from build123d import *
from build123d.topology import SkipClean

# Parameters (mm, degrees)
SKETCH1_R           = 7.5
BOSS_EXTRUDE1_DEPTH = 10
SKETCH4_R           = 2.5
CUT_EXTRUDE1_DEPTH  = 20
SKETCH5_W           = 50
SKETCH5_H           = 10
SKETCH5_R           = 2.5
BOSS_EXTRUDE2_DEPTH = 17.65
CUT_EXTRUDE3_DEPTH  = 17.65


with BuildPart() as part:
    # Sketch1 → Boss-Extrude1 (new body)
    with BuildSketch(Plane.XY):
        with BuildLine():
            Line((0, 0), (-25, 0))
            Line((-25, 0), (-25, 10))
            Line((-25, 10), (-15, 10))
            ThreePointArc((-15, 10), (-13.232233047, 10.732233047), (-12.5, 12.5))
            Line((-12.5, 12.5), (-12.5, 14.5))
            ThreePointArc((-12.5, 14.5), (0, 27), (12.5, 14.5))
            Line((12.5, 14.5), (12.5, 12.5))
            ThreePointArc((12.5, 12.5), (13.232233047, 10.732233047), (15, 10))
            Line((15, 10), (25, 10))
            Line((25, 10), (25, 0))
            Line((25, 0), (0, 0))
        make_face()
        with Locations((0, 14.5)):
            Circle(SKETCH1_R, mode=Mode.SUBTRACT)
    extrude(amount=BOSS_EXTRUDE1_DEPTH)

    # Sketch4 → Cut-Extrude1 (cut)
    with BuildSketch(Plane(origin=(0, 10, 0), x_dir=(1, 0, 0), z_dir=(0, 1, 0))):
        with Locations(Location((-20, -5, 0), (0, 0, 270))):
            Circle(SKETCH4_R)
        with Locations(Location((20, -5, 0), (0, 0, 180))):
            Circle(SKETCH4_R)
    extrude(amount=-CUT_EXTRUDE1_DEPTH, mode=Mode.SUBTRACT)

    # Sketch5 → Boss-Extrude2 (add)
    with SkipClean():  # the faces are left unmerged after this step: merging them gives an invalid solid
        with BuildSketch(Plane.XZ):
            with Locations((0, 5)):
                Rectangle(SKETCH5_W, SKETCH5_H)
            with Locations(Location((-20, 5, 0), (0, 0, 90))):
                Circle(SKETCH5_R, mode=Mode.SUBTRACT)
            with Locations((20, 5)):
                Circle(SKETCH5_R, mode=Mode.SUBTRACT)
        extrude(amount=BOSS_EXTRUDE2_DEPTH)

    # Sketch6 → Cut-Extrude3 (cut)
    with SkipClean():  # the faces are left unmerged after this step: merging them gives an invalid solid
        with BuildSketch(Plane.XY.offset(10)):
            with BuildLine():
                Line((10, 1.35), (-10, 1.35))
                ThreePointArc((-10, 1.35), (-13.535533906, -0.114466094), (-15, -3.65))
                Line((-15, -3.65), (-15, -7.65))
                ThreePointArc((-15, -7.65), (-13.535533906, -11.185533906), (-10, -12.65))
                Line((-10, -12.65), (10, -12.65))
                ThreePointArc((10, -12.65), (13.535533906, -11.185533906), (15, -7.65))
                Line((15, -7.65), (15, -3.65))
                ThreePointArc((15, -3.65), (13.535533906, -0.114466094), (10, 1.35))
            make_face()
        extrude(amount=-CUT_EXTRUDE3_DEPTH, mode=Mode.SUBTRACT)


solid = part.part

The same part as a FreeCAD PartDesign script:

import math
import FreeCAD as App
import Part
import Sketcher
from FreeCAD import Vector
Q = App.Units.Quantity


def add_polygon(sketch, points):
    """Adds a closed chain of lines whose ends are joined by coincident constraints."""
    first, n = sketch.GeometryCount, len(points)
    for a, b in zip(points, points[1:] + points[:1]):
        sketch.addGeometry(Part.LineSegment(App.Vector(*a, 0), App.Vector(*b, 0)), False)
    for i in range(n):
        sketch.addConstraint(Sketcher.Constraint("Coincident", first + i, 2, first + (i + 1) % n, 1))

doc = App.newDocument("Part")
body = doc.addObject("PartDesign::Body", "Body")

# Sketch on XY plane
sketch1 = doc.addObject("Sketcher::SketchObject", "Sketch")
body.addObject(sketch1)
sketch1.AttachmentSupport = (doc.XY_Plane, [""])
sketch1.MapMode = "FlatFace"
sketch1.addGeometry(Part.LineSegment(Vector(-25, 10, 0), Vector(-25, 0, 0)), False)
sketch1.addGeometry(Part.LineSegment(Vector(-25, 0, 0), Vector(25, 0, 0)), False)
sketch1.addGeometry(Part.LineSegment(Vector(25, 0, 0), Vector(25, 10, 0)), False)
sketch1.addGeometry(Part.LineSegment(Vector(25, 10, 0), Vector(15, 10, 0)), False)
sketch1.addGeometry(Part.ArcOfCircle(Part.Circle(Vector(15, 12.5, 0), Vector(0, 0, 1), 2.5), math.radians(180), math.radians(270)), False)
sketch1.addGeometry(Part.LineSegment(Vector(12.5, 12.5, 0), Vector(12.5, 14.5, 0)), False)
sketch1.addGeometry(Part.ArcOfCircle(Part.Circle(Vector(0, 14.5, 0), Vector(0, 0, 1), 12.5), math.radians(0), math.radians(180)), False)
sketch1.addGeometry(Part.LineSegment(Vector(-12.5, 14.5, 0), Vector(-12.5, 12.5, 0)), False)
sketch1.addGeometry(Part.ArcOfCircle(Part.Circle(Vector(-15, 12.5, 0), Vector(0, 0, 1), 2.5), math.radians(-90), math.radians(0)), False)
sketch1.addGeometry(Part.LineSegment(Vector(-15, 10, 0), Vector(-25, 10, 0)), False)
sketch1.addGeometry(Part.Circle(Vector(0, 14.5, 0), Vector(0, 0, 1), 7.5), False)
sketch1.addConstraint(Sketcher.Constraint("Coincident", 0, 2, 1, 1))
sketch1.addConstraint(Sketcher.Constraint("Coincident", 1, 2, 2, 1))
sketch1.addConstraint(Sketcher.Constraint("Coincident", 2, 2, 3, 1))
sketch1.addConstraint(Sketcher.Constraint("Tangent", 3, 2, 4, 2))
sketch1.addConstraint(Sketcher.Constraint("Tangent", 4, 1, 5, 1))
sketch1.addConstraint(Sketcher.Constraint("Tangent", 5, 2, 6, 1))
sketch1.addConstraint(Sketcher.Constraint("Tangent", 6, 2, 7, 1))
sketch1.addConstraint(Sketcher.Constraint("Tangent", 7, 2, 8, 2))
sketch1.addConstraint(Sketcher.Constraint("Tangent", 8, 1, 9, 1))
sketch1.addConstraint(Sketcher.Constraint("Coincident", 9, 2, 0, 1))
sketch1.addConstraint(Sketcher.Constraint("Vertical", 0))
sketch1.addConstraint(Sketcher.Constraint("Horizontal", 1))
sketch1.addConstraint(Sketcher.Constraint("Vertical", 2))
sketch1.addConstraint(Sketcher.Constraint("Horizontal", 3))
sketch1.addConstraint(Sketcher.Constraint("Vertical", 5))
sketch1.addConstraint(Sketcher.Constraint("Vertical", 7))
sketch1.addConstraint(Sketcher.Constraint("Horizontal", 9))
sketch1.addConstraint(Sketcher.Constraint("Coincident", 10, 3, 6, 3))
sketch1.addConstraint(Sketcher.Constraint("Equal", 4, 8))
sketch1.addConstraint(Sketcher.Constraint("Symmetric", 0, 2, 1, 2, -1, 1))
sketch1.addConstraint(Sketcher.Constraint("Symmetric", 4, 3, 8, 3, -2))
sketch1.addConstraint(Sketcher.Constraint("Equal", 9, 0))
sketch1.addConstraint(Sketcher.Constraint("Diameter", 10, Q("15 mm")))
sketch1.addConstraint(Sketcher.Constraint("Radius", 4, Q("2.5 mm")))
sketch1.addConstraint(Sketcher.Constraint("Radius", 6, Q("12.5 mm")))
sketch1.addConstraint(Sketcher.Constraint("DistanceX", 1, 1, 1, 2, Q("50 mm")))
sketch1.addConstraint(Sketcher.Constraint("DistanceY", 5, 1, 5, 2, Q("2 mm")))
pad1 = doc.addObject("PartDesign::Pad", "Pad")
body.addObject(pad1)
pad1.Profile = sketch1
pad1.Length = 10

# Sketch on XZ plane
sketch2 = doc.addObject("Sketcher::SketchObject", "Sketch001")
body.addObject(sketch2)
sketch2.AttachmentSupport = (doc.XZ_Plane, [""])
sketch2.MapMode = "FlatFace"
sketch2.AttachmentOffset = App.Placement(Vector(0, 0, -10), App.Rotation())
sketch2.addGeometry(Part.Circle(Vector(-20, 5, 0), Vector(0, 0, 1), 2.5), False)
sketch2.addGeometry(Part.Circle(Vector(20, 5, 0), Vector(0, 0, 1), 2.5), False)
sketch2.addConstraint(Sketcher.Constraint("Equal", 0, 1))
sketch2.addConstraint(Sketcher.Constraint("Symmetric", 0, 3, 1, 3, -2))
sketch2.addConstraint(Sketcher.Constraint("Diameter", 0, Q("5 mm")))
sketch2.addConstraint(Sketcher.Constraint("DistanceX", 0, 3, -1, 1, Q("20 mm")))
sketch2.addConstraint(Sketcher.Constraint("DistanceY", -1, 1, 0, 3, Q("5 mm")))
pocket1 = doc.addObject("PartDesign::Pocket", "Pocket")
body.addObject(pocket1)
pocket1.Profile = sketch2
pocket1.Length = 20
pocket1.Reversed = True

# Sketch on XZ plane
sketch3 = doc.addObject("Sketcher::SketchObject", "Sketch002")
body.addObject(sketch3)
sketch3.AttachmentSupport = (doc.XZ_Plane, [""])
sketch3.MapMode = "FlatFace"
add_polygon(sketch3, [(-25, 10), (-25, 0), (25, 0), (25, 10)])  # lines 0-3
sketch3.addGeometry(Part.Circle(Vector(-20, 5, 0), Vector(0, 0, 1), 2.5), False)  # 4
sketch3.addGeometry(Part.Circle(Vector(20, 5, 0), Vector(0, 0, 1), 2.5), False)  # 5
sketch3.addConstraint(Sketcher.Constraint("Vertical", 0))
sketch3.addConstraint(Sketcher.Constraint("Horizontal", 1))
sketch3.addConstraint(Sketcher.Constraint("Vertical", 2))
sketch3.addConstraint(Sketcher.Constraint("Horizontal", 3))
sketch3.addConstraint(Sketcher.Constraint("Equal", 4, 5))
sketch3.addConstraint(Sketcher.Constraint("Symmetric", 0, 2, 1, 2, -1, 1))
sketch3.addConstraint(Sketcher.Constraint("Symmetric", 4, 3, 5, 3, -2))
sketch3.addConstraint(Sketcher.Constraint("Diameter", 4, Q("5 mm")))
sketch3.addConstraint(Sketcher.Constraint("DistanceX", 1, 1, 1, 2, Q("50 mm")))
sketch3.addConstraint(Sketcher.Constraint("DistanceY", 0, 2, 0, 1, Q("10 mm")))
sketch3.addConstraint(Sketcher.Constraint("DistanceX", 4, 3, -1, 1, Q("20 mm")))
sketch3.addConstraint(Sketcher.Constraint("DistanceY", -1, 1, 4, 3, Q("5 mm")))
pad2 = doc.addObject("PartDesign::Pad", "Pad001")
body.addObject(pad2)
pad2.Profile = sketch3
pad2.Length = 17.65

# Sketch on XY plane
sketch4 = doc.addObject("Sketcher::SketchObject", "Sketch003")
body.addObject(sketch4)
sketch4.AttachmentSupport = (doc.XY_Plane, [""])
sketch4.MapMode = "FlatFace"
sketch4.AttachmentOffset = App.Placement(Vector(0, 0, 10), App.Rotation())
sketch4.addGeometry(Part.LineSegment(Vector(10, 1.35, 0), Vector(-10, 1.35, 0)), False)
sketch4.addGeometry(Part.ArcOfCircle(Part.Circle(Vector(-10, -3.65, 0), Vector(0, 0, 1), 5), math.radians(90), math.radians(180)), False)
sketch4.addGeometry(Part.LineSegment(Vector(-15, -3.65, 0), Vector(-15, -7.65, 0)), False)
sketch4.addGeometry(Part.ArcOfCircle(Part.Circle(Vector(-10, -7.65, 0), Vector(0, 0, 1), 5), math.radians(180), math.radians(270)), False)
sketch4.addGeometry(Part.LineSegment(Vector(-10, -12.65, 0), Vector(10, -12.65, 0)), False)
sketch4.addGeometry(Part.ArcOfCircle(Part.Circle(Vector(10, -7.65, 0), Vector(0, 0, 1), 5), math.radians(-90), math.radians(0)), False)
sketch4.addGeometry(Part.LineSegment(Vector(15, -7.65, 0), Vector(15, -3.65, 0)), False)
sketch4.addGeometry(Part.ArcOfCircle(Part.Circle(Vector(10, -3.65, 0), Vector(0, 0, 1), 5), math.radians(0), math.radians(90)), False)
sketch4.addConstraint(Sketcher.Constraint("Tangent", 0, 2, 1, 1))
sketch4.addConstraint(Sketcher.Constraint("Tangent", 1, 2, 2, 1))
sketch4.addConstraint(Sketcher.Constraint("Tangent", 2, 2, 3, 1))
sketch4.addConstraint(Sketcher.Constraint("Tangent", 3, 2, 4, 1))
sketch4.addConstraint(Sketcher.Constraint("Tangent", 4, 2, 5, 1))
sketch4.addConstraint(Sketcher.Constraint("Tangent", 5, 2, 6, 1))
sketch4.addConstraint(Sketcher.Constraint("Tangent", 6, 2, 7, 1))
sketch4.addConstraint(Sketcher.Constraint("Tangent", 7, 2, 0, 1))
sketch4.addConstraint(Sketcher.Constraint("Horizontal", 0))
sketch4.addConstraint(Sketcher.Constraint("Vertical", 2))
sketch4.addConstraint(Sketcher.Constraint("Horizontal", 4))
sketch4.addConstraint(Sketcher.Constraint("Vertical", 6))
sketch4.addConstraint(Sketcher.Constraint("Equal", 1, 3))
sketch4.addConstraint(Sketcher.Constraint("Equal", 3, 5))
sketch4.addConstraint(Sketcher.Constraint("Equal", 5, 7))
sketch4.addConstraint(Sketcher.Constraint("Radius", 1, Q("5 mm")))
sketch4.addConstraint(Sketcher.Constraint("DistanceX", 0, 2, 0, 1, Q("20 mm")))
sketch4.addConstraint(Sketcher.Constraint("DistanceY", 2, 2, 2, 1, Q("4 mm")))
sketch4.addConstraint(Sketcher.Constraint("DistanceX", 1, 3, -1, 1, Q("10 mm")))
sketch4.addConstraint(Sketcher.Constraint("DistanceY", 1, 3, -1, 1, Q("3.65 mm")))
pocket2 = doc.addObject("PartDesign::Pocket", "Pocket001")
body.addObject(pocket2)
pocket2.Profile = sketch4
pocket2.Length = 17.65

doc.recompute()
